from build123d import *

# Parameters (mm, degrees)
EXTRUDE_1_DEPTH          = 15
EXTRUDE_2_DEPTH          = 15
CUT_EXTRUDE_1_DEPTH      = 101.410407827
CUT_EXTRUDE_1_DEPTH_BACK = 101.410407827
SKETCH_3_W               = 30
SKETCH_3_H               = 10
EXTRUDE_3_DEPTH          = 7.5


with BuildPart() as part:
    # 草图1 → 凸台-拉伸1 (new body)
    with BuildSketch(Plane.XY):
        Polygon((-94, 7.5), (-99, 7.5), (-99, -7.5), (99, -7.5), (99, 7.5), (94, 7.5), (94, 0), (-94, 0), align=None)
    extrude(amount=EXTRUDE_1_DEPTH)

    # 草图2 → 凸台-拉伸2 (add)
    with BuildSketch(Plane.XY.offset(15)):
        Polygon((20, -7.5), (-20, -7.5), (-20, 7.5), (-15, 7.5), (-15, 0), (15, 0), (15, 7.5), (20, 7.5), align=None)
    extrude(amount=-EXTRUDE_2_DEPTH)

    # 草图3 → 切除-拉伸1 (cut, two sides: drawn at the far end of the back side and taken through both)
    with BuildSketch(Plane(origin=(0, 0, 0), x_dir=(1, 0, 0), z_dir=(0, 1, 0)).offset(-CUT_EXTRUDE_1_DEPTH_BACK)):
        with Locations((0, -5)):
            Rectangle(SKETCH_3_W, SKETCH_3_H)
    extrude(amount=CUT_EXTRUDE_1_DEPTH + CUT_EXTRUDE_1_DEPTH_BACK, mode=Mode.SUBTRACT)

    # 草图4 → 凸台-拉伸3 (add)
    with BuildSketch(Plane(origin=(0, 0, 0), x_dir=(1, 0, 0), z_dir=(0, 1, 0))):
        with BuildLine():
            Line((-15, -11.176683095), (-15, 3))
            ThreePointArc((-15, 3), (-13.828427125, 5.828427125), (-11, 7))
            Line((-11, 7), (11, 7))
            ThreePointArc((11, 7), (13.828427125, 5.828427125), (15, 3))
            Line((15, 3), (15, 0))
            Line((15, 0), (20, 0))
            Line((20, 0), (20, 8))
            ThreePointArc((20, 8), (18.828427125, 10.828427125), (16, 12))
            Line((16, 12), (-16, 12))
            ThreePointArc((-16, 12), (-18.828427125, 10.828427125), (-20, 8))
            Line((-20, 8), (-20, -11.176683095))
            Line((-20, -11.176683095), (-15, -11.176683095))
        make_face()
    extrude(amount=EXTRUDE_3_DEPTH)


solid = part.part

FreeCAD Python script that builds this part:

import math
import FreeCAD as App
import Part
import Sketcher


def add_polygon(sketch, points):
    """Adds a closed chain of lines whose ends are joined by coincident constraints."""
    first, n = sketch.GeometryCount, len(points)
    for a, b in zip(points, points[1:] + points[:1]):
        sketch.addGeometry(Part.LineSegment(App.Vector(*a, 0), App.Vector(*b, 0)), False)
    for i in range(n):
        sketch.addConstraint(Sketcher.Constraint("Coincident", first + i, 2, first + (i + 1) % n, 1))

doc = App.newDocument("Part")
params = doc.addObject("Spreadsheet::Sheet", "Params")
for row, (alias, value) in enumerate([
    ("sketch1_width", "5 mm"),
    ("sketch1_width2", "198 mm"),
    ("sketch1_height", "15 mm"),
    ("pad1_length", "15 mm"),
    ("sketch2_width", "40 mm"),
    ("sketch2_width2", "5 mm"),
    ("sketch2_height", "15 mm"),
    ("pad2_length", "15 mm"),
    ("sketch3_width", "30 mm"),
    ("sketch3_height", "10 mm"),
    ("sketch4_radius", "4 mm"),
    ("sketch4_width", "22 mm"),
    ("sketch4_width2", "5 mm"),
    ("sketch4_height", "3 mm"),
    ("sketch4_height2", "8 mm"),
    ("pad3_length", "7.5 mm"),
], start=1):
    params.set(f"A{row}", alias)
    params.set(f"B{row}", "=" + value)
    params.setAlias(f"B{row}", alias)

body = doc.addObject("PartDesign::Body", "Body")

# Sketch on XY plane
sketch1 = body.newObject("Sketcher::SketchObject", "Sketch")
sketch1.AttachmentSupport = (doc.getObject("XY_Plane"), [""])
sketch1.MapMode = "FlatFace"
add_polygon(sketch1, [(-94, 7.5), (-99, 7.5), (-99, -7.5), (99, -7.5), (99, 7.5), (94, 7.5), (94, 0), (-94, 0)])  # lines 0-7
sketch1.addConstraint([
    Sketcher.Constraint("Horizontal", 0),
    Sketcher.Constraint("Vertical", 1),
    Sketcher.Constraint("Horizontal", 2),
    Sketcher.Constraint("Vertical", 3),
    Sketcher.Constraint("Horizontal", 4),
    Sketcher.Constraint("Vertical", 5),
    Sketcher.Constraint("Horizontal", 6),
    Sketcher.Constraint("Vertical", 7),
    Sketcher.Constraint("Symmetric", 0, 2, 2, 2, -1, 1),
    Sketcher.Constraint("Symmetric", 5, 2, 6, 2, -1, 1),
    Sketcher.Constraint("Horizontal", 0, 2, 3, 2),
    Sketcher.Constraint("DistanceX", 0, 2, 0, 1, 5.0),
    Sketcher.Constraint("DistanceX", 2, 1, 2, 2, 198.0),
    Sketcher.Constraint("DistanceY", 1, 2, 1, 1, 15.0),
])
sketch1.setExpression("Constraints[19]", "Params.sketch1_width")
sketch1.setExpression("Constraints[20]", "Params.sketch1_width2")
sketch1.setExpression("Constraints[21]", "Params.sketch1_height")
pad1 = body.newObject("PartDesign::Pad", "Pad")
pad1.Profile = sketch1
pad1.setExpression("Length", "Params.pad1_length")

# Sketch on XY plane
sketch2 = body.newObject("Sketcher::SketchObject", "Sketch001")
sketch2.AttachmentSupport = (doc.getObject("XY_Plane"), [""])
sketch2.MapMode = "FlatFace"
sketch2.AttachmentOffset = App.Placement(App.Vector(0, 0, 15), App.Rotation())
add_polygon(sketch2, [(-20, -7.5), (20, -7.5), (20, 7.5), (15, 7.5), (15, 0), (-15, 0), (-15, 7.5), (-20, 7.5)])  # lines 0-7
sketch2.addConstraint([
    Sketcher.Constraint("Horizontal", 0),
    Sketcher.Constraint("Vertical", 1),
    Sketcher.Constraint("Horizontal", 2),
    Sketcher.Constraint("Vertical", 3),
    Sketcher.Constraint("Horizontal", 4),
    Sketcher.Constraint("Vertical", 5),
    Sketcher.Constraint("Horizontal", 6),
    Sketcher.Constraint("Vertical", 7),
    Sketcher.Constraint("Symmetric", 3, 2, 4, 2, -1, 1),
    Sketcher.Constraint("Symmetric", 0, 2, 6, 2, -1, 1),
    Sketcher.Constraint("Horizontal", 2, 2, 5, 2),
    Sketcher.Constraint("DistanceX", 0, 1, 0, 2, 40.0),
    Sketcher.Constraint("DistanceX", 2, 2, 2, 1, 5.0),
    Sketcher.Constraint("DistanceY", 1, 1, 1, 2, 15.0),
])
sketch2.setExpression("Constraints[19]", "Params.sketch2_width")
sketch2.setExpression("Constraints[20]", "Params.sketch2_width2")
sketch2.setExpression("Constraints[21]", "Params.sketch2_height")
pad2 = body.newObject("PartDesign::Pad", "Pad001")
pad2.Profile = sketch2
pad2.setExpression("Length", "Params.pad2_length")
pad2.Reversed = True

# Sketch on XZ plane
sketch3 = body.newObject("Sketcher::SketchObject", "Sketch002")
sketch3.AttachmentSupport = (doc.getObject("XZ_Plane"), [""])
sketch3.MapMode = "FlatFace"
add_polygon(sketch3, [(-15, 0), (-15, 10), (15, 10), (15, 0)])  # lines 0-3
sketch3.addConstraint([
    Sketcher.Constraint("Vertical", 0),
    Sketcher.Constraint("Horizontal", 1),
    Sketcher.Constraint("Vertical", 2),
    Sketcher.Constraint("Horizontal", 3),
    Sketcher.Constraint("Symmetric", 2, 2, 3, 2, -1, 1),
    Sketcher.Constraint("DistanceX", 1, 1, 1, 2, 30.0),
    Sketcher.Constraint("DistanceY", 0, 1, 0, 2, 10.0),
])
sketch3.setExpression("Constraints[9]", "Params.sketch3_width")
sketch3.setExpression("Constraints[10]", "Params.sketch3_height")
pocket1 = body.newObject("PartDesign::Pocket", "Pocket")
pocket1.Profile = sketch3
pocket1.Type = "ThroughAll"
pocket1.Midplane = True

# Sketch on XZ plane
sketch4 = body.newObject("Sketcher::SketchObject", "Sketch003")
sketch4.AttachmentSupport = (doc.getObject("XZ_Plane"), [""])
sketch4.MapMode = "FlatFace"
sketch4.addGeometry([
    Part.LineSegment(App.Vector(-15, 11.176683, 0), App.Vector(-15, -3, 0)),  # 0
    Part.ArcOfCircle(Part.Circle(App.Vector(-11, -3, 0), App.Vector(0, 0, 1), 4), math.radians(180), math.radians(270)),  # 1
    Part.LineSegment(App.Vector(-11, -7, 0), App.Vector(11, -7, 0)),  # 2
    Part.ArcOfCircle(Part.Circle(App.Vector(11, -3, 0), App.Vector(0, 0, 1), 4), math.radians(-90), math.radians(0)),  # 3
    Part.LineSegment(App.Vector(15, -3, 0), App.Vector(15, 0, 0)),  # 4
    Part.LineSegment(App.Vector(15, 0, 0), App.Vector(20, 0, 0)),  # 5
    Part.LineSegment(App.Vector(20, 0, 0), App.Vector(20, -8, 0)),  # 6
    Part.ArcOfCircle(Part.Circle(App.Vector(16, -8, 0), App.Vector(0, 0, 1), 4), math.radians(-90), math.radians(0)),  # 7
    Part.LineSegment(App.Vector(16, -12, 0), App.Vector(-16, -12, 0)),  # 8
    Part.ArcOfCircle(Part.Circle(App.Vector(-16, -8, 0), App.Vector(0, 0, 1), 4), math.radians(180), math.radians(270)),  # 9
    Part.LineSegment(App.Vector(-20, -8, 0), App.Vector(-20, 11.176683, 0)),  # 10
    Part.LineSegment(App.Vector(-20, 11.176683, 0), App.Vector(-15, 11.176683, 0)),  # 11
], False)
sketch4.addConstraint([
    Sketcher.Constraint("Tangent", 0, 2, 1, 1),
    Sketcher.Constraint("Tangent", 1, 2, 2, 1),
    Sketcher.Constraint("Tangent", 2, 2, 3, 1),
    Sketcher.Constraint("Tangent", 3, 2, 4, 1),
    Sketcher.Constraint("Coincident", 4, 2, 5, 1),
    Sketcher.Constraint("Coincident", 5, 2, 6, 1),
    Sketcher.Constraint("Tangent", 6, 2, 7, 2),
    Sketcher.Constraint("Tangent", 7, 1, 8, 1),
    Sketcher.Constraint("Tangent", 8, 2, 9, 2),
    Sketcher.Constraint("Tangent", 9, 1, 10, 1),
    Sketcher.Constraint("Coincident", 10, 2, 11, 1),
    Sketcher.Constraint("Coincident", 11, 2, 0, 1),
    Sketcher.Constraint("Vertical", 0),
    Sketcher.Constraint("Horizontal", 2),
    Sketcher.Constraint("Vertical", 4),
    Sketcher.Constraint("Horizontal", 5),
    Sketcher.Constraint("Vertical", 6),
    Sketcher.Constraint("Horizontal", 8),
    Sketcher.Constraint("Vertical", 10),
    Sketcher.Constraint("Horizontal", 11),
    Sketcher.Constraint("Equal", 1, 3),
    Sketcher.Constraint("Equal", 3, 7),
    Sketcher.Constraint("Equal", 7, 9),
    Sketcher.Constraint("PointOnObject", 4, 2, -1),
    Sketcher.Constraint("Equal", 5, 11),
    Sketcher.Constraint("Radius", 1, 4.0),
    Sketcher.Constraint("DistanceX", 2, 1, 2, 2, 22.0),
    Sketcher.Constraint("DistanceX", 5, 1, 5, 2, 5.0),
    Sketcher.Constraint("DistanceY", 4, 1, 4, 2, 3.0),
    Sketcher.Constraint("DistanceY", 6, 2, 6, 1, 8.0),
    Sketcher.Constraint("DistanceX", 1, 3, -1, 1, 11.0),
    Sketcher.Constraint("DistanceY", 0, 2, 0, 1, 14.176683),
])
sketch4.setExpression("Constraints[25]", "Params.sketch4_radius")
sketch4.setExpression("Constraints[26]", "Params.sketch4_width")
sketch4.setExpression("Constraints[27]", "Params.sketch4_width2")
sketch4.setExpression("Constraints[28]", "Params.sketch4_height")
sketch4.setExpression("Constraints[29]", "Params.sketch4_height2")
pad3 = body.newObject("PartDesign::Pad", "Pad002")
pad3.Profile = sketch4
pad3.setExpression("Length", "Params.pad3_length")
pad3.Reversed = True

doc.recompute()
